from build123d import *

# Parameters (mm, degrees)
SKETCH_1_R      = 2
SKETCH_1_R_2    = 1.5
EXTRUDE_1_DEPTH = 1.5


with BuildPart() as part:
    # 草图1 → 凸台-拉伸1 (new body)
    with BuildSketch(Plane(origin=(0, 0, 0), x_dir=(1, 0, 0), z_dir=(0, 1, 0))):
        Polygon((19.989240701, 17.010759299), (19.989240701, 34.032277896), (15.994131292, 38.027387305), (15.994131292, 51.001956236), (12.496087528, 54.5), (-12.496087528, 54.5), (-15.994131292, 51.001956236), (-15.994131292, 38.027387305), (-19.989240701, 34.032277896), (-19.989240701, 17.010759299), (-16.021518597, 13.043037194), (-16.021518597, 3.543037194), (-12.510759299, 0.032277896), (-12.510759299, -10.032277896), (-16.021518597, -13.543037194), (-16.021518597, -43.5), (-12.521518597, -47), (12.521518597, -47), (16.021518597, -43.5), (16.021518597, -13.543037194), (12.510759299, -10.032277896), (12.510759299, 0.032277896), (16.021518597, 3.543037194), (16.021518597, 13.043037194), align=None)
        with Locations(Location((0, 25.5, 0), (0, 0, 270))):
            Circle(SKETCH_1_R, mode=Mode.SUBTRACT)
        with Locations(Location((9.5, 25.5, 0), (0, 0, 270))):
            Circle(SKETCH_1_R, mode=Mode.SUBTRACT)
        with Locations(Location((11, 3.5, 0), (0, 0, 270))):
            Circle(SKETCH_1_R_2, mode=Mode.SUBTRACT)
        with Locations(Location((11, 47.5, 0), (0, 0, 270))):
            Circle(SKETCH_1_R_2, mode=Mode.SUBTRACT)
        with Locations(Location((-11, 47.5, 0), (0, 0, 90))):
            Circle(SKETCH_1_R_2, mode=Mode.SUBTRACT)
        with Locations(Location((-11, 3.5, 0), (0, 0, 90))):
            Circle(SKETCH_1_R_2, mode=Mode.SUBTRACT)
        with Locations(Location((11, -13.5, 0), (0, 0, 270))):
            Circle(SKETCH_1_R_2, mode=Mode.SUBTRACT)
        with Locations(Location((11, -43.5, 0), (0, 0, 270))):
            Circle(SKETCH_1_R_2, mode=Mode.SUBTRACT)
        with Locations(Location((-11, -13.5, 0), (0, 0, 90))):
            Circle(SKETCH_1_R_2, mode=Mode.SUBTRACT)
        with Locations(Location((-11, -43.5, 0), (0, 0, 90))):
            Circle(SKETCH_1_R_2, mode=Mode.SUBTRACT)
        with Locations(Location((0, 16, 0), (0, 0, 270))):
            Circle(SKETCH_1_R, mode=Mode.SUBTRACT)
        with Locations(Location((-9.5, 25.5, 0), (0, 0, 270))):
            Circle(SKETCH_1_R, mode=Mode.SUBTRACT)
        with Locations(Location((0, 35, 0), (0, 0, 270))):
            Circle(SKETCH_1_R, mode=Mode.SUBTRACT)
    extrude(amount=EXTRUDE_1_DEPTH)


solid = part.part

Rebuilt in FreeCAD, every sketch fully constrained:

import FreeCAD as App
import Part
import Sketcher

V = App.Vector

doc = App.newDocument("Part")
body = doc.addObject("PartDesign::Body", "Body")

sketch1 = body.newObject("Sketcher::SketchObject", "Sketch")
sketch1.AttachmentSupport = (doc.getObject("XZ_Plane"), [""])
sketch1.MapMode = "FlatFace"
sketch1.addGeometry([
    Part.LineSegment(V(20, -17, 0), V(20, -34, 0)),
    Part.LineSegment(V(20, -34, 0), V(16, -38, 0)),
    Part.LineSegment(V(16, -38, 0), V(16, -51, 0)),
    Part.LineSegment(V(16, -51, 0), V(12.5, -54.5, 0)),
    Part.LineSegment(V(12.5, -54.5, 0), V(-12.5, -54.5, 0)),
    Part.LineSegment(V(-12.5, -54.5, 0), V(-16, -51, 0)),
    Part.LineSegment(V(-16, -51, 0), V(-16, -38, 0)),
    Part.LineSegment(V(-16, -38, 0), V(-20, -34, 0)),
    Part.LineSegment(V(-20, -34, 0), V(-20, -17, 0)),
    Part.LineSegment(V(-20, -17, 0), V(-16, -13, 0)),
    Part.LineSegment(V(-16, -13, 0), V(-16, -3.5, 0)),
    Part.LineSegment(V(-16, -3.5, 0), V(-12.5, 0, 0)),
    Part.LineSegment(V(-12.5, 0, 0), V(-12.5, 10, 0)),
    Part.LineSegment(V(-12.5, 10, 0), V(-16, 13.5, 0)),
    Part.LineSegment(V(-16, 13.5, 0), V(-16, 43.5, 0)),
    Part.LineSegment(V(-16, 43.5, 0), V(-12.5, 47, 0)),
    Part.LineSegment(V(-12.5, 47, 0), V(12.5, 47, 0)),
    Part.LineSegment(V(12.5, 47, 0), V(16, 43.5, 0)),
    Part.LineSegment(V(16, 43.5, 0), V(16, 13.5, 0)),
    Part.LineSegment(V(16, 13.5, 0), V(12.5, 10, 0)),
    Part.LineSegment(V(12.5, 10, 0), V(12.5, 0, 0)),
    Part.LineSegment(V(12.5, 0, 0), V(16, -3.5, 0)),
    Part.LineSegment(V(16, -3.5, 0), V(16, -13, 0)),
    Part.LineSegment(V(16, -13, 0), V(20, -17, 0)),
    Part.Circle(V(-11, 43.5, 0), V(0, 0, 1), 1.5),
    Part.Circle(V(-11, 13.5, 0), V(0, 0, 1), 1.5),
    Part.Circle(V(11, 43.5, 0), V(0, 0, 1), 1.5),
    Part.Circle(V(11, 13.5, 0), V(0, 0, 1), 1.5),
    Part.Circle(V(-11, -3.5, 0), V(0, 0, 1), 1.5),
    Part.Circle(V(-9.5, -25.5, 0), V(0, 0, 1), 2),
    Part.Circle(V(-11, -47.5, 0), V(0, 0, 1), 1.5),
    Part.Circle(V(0, -16, 0), V(0, 0, 1), 2),
    Part.Circle(V(11, -3.5, 0), V(0, 0, 1), 1.5),
    Part.Circle(V(0, -25.5, 0), V(0, 0, 1), 2),
    Part.Circle(V(0, -35, 0), V(0, 0, 1), 2),
    Part.Circle(V(9.5, -25.5, 0), V(0, 0, 1), 2),
    Part.Circle(V(11, -47.5, 0), V(0, 0, 1), 1.5),
], False)
sketch1.addConstraint([
    Sketcher.Constraint("Coincident", 0, 2, 1, 1),
    Sketcher.Constraint("Coincident", 1, 2, 2, 1),
    Sketcher.Constraint("Coincident", 2, 2, 3, 1),
    Sketcher.Constraint("Coincident", 3, 2, 4, 1),
    Sketcher.Constraint("Coincident", 4, 2, 5, 1),
    Sketcher.Constraint("Coincident", 5, 2, 6, 1),
    Sketcher.Constraint("Coincident", 6, 2, 7, 1),
    Sketcher.Constraint("Coincident", 7, 2, 8, 1),
    Sketcher.Constraint("Coincident", 8, 2, 9, 1),
    Sketcher.Constraint("Coincident", 9, 2, 10, 1),
    Sketcher.Constraint("Coincident", 10, 2, 11, 1),
    Sketcher.Constraint("Coincident", 11, 2, 12, 1),
    Sketcher.Constraint("Coincident", 12, 2, 13, 1),
    Sketcher.Constraint("Coincident", 13, 2, 14, 1),
    Sketcher.Constraint("Coincident", 14, 2, 15, 1),
    Sketcher.Constraint("Coincident", 15, 2, 16, 1),
    Sketcher.Constraint("Coincident", 16, 2, 17, 1),
    Sketcher.Constraint("Coincident", 17, 2, 18, 1),
    Sketcher.Constraint("Coincident", 18, 2, 19, 1),
    Sketcher.Constraint("Coincident", 19, 2, 20, 1),
    Sketcher.Constraint("Coincident", 20, 2, 21, 1),
    Sketcher.Constraint("Coincident", 21, 2, 22, 1),
    Sketcher.Constraint("Coincident", 22, 2, 23, 1),
    Sketcher.Constraint("Coincident", 23, 2, 0, 1),
    Sketcher.Constraint("Vertical", 0),
    Sketcher.Constraint("Vertical", 2),
    Sketcher.Constraint("Horizontal", 4),
    Sketcher.Constraint("Vertical", 6),
    Sketcher.Constraint("Vertical", 8),
    Sketcher.Constraint("Vertical", 10),
    Sketcher.Constraint("Vertical", 12),
    Sketcher.Constraint("Vertical", 14),
    Sketcher.Constraint("Horizontal", 16),
    Sketcher.Constraint("Vertical", 18),
    Sketcher.Constraint("Vertical", 20),
    Sketcher.Constraint("Vertical", 22),
    Sketcher.Constraint("Equal", 24, 25),
    Sketcher.Constraint("Equal", 25, 26),
    Sketcher.Constraint("Equal", 26, 27),
    Sketcher.Constraint("Equal", 27, 28),
    Sketcher.Constraint("Equal", 28, 30),
    Sketcher.Constraint("Equal", 29, 31),
    Sketcher.Constraint("Equal", 30, 32),
    Sketcher.Constraint("Equal", 31, 33),
    Sketcher.Constraint("Equal", 33, 34),
    Sketcher.Constraint("Equal", 34, 35),
    Sketcher.Constraint("Equal", 32, 36),
    Sketcher.Constraint("Symmetric", 24, 3, 26, 3, -2),
    Sketcher.Constraint("Symmetric", 25, 3, 27, 3, -2),
    Sketcher.Constraint("Symmetric", 28, 3, 32, 3, -2),
    Sketcher.Constraint("Symmetric", 29, 3, 35, 3, -2),
    Sketcher.Constraint("Symmetric", 30, 3, 36, 3, -2),
    Sketcher.Constraint("Symmetric", 2, 2, 5, 2, -2),
    Sketcher.Constraint("Symmetric", 0, 2, 7, 2, -2),
    Sketcher.Constraint("Symmetric", 14, 2, 17, 2, -2),
    Sketcher.Constraint("Symmetric", 12, 2, 19, 2, -2),
    Sketcher.Constraint("Symmetric", 10, 2, 21, 2, -2),
    Sketcher.Constraint("PointOnObject", 31, 3, -2),
    Sketcher.Constraint("PointOnObject", 33, 3, -2),
    Sketcher.Constraint("PointOnObject", 34, 3, -2),
    Sketcher.Constraint("Parallel", 1, 3),
    Sketcher.Constraint("Perpendicular", 3, 5),
    Sketcher.Constraint("Parallel", 5, 7),
    Sketcher.Constraint("Perpendicular", 7, 9),
    Sketcher.Constraint("Parallel", 9, 11),
    Sketcher.Constraint("Perpendicular", 11, 13),
    Sketcher.Constraint("Perpendicular", 13, 15),
    Sketcher.Constraint("Perpendicular", 15, 17),
    Sketcher.Constraint("Perpendicular", 17, 19),
    Sketcher.Constraint("Perpendicular", 19, 21),
    Sketcher.Constraint("Parallel", 21, 23),
    Sketcher.Constraint("Horizontal", 29, 3, 33, 3),
    Sketcher.Constraint("Horizontal", 1, 2, 6, 2),
    Sketcher.Constraint("Horizontal", 26, 3, 14, 2),
    Sketcher.Constraint("Horizontal", 9, 2, 22, 2),
    Sketcher.Constraint("Vertical", 24, 3, 25, 3),
    Sketcher.Constraint("Vertical", 25, 3, 28, 3),
    Sketcher.Constraint("Vertical", 28, 3, 30, 3),
    Sketcher.Constraint("Vertical", 10, 2, 13, 2),
    Sketcher.Constraint("Diameter", 24, 3.0),
    Sketcher.Constraint("Diameter", 29, 4.0),
    Sketcher.Constraint("DistanceY", 10, 1, 10, 2, 9.5),
    Sketcher.Constraint("DistanceX", 24, 3, -1, 1, 11.0),
    Sketcher.Constraint("DistanceY", 31, 3, -1, 1, 16.0),
    Sketcher.Constraint("DistanceY", 34, 3, -1, 1, 35.0),
    Sketcher.Constraint("DistanceY", -1, 1, 15, 2, 47.0),
    Sketcher.Constraint("DistanceY", 25, 3, 24, 3, 30.0),
    Sketcher.Constraint("DistanceY", 28, 3, 25, 3, 17.0),
    Sketcher.Constraint("DistanceY", 29, 3, 28, 3, 22.0),
    Sketcher.Constraint("DistanceY", 30, 3, 29, 3, 22.0),
    Sketcher.Constraint("DistanceX", 29, 3, 35, 3, 19.0),
    Sketcher.Constraint("DistanceY", 3, 2, 36, 3, 7.0),
    Sketcher.Constraint("DistanceY", -1, 1, 24, 3, 43.5),
    Sketcher.Constraint("DistanceY", 0, 2, 0, 1, 17.021519),
    Sketcher.Constraint("DistanceY", 2, 2, 2, 1, 12.974569),
    Sketcher.Constraint("Distance", 3, 4.946981),
    Sketcher.Constraint("DistanceX", 4, 2, 4, 1, 24.992175),
    Sketcher.Constraint("DistanceX", 16, 1, 16, 2, 25.043037),
    Sketcher.Constraint("DistanceY", 12, 1, 12, 2, 10.064556),
    Sketcher.Constraint("DistanceY", 14, 1, 14, 2, 29.956963),
    Sketcher.Constraint("DistanceX", -1, 1, 0, 2, 19.989241),
])
pad1 = body.newObject("PartDesign::Pad", "Pad")
pad1.Profile = sketch1
pad1.Length = 1.5
pad1.Reversed = True

doc.recompute()
